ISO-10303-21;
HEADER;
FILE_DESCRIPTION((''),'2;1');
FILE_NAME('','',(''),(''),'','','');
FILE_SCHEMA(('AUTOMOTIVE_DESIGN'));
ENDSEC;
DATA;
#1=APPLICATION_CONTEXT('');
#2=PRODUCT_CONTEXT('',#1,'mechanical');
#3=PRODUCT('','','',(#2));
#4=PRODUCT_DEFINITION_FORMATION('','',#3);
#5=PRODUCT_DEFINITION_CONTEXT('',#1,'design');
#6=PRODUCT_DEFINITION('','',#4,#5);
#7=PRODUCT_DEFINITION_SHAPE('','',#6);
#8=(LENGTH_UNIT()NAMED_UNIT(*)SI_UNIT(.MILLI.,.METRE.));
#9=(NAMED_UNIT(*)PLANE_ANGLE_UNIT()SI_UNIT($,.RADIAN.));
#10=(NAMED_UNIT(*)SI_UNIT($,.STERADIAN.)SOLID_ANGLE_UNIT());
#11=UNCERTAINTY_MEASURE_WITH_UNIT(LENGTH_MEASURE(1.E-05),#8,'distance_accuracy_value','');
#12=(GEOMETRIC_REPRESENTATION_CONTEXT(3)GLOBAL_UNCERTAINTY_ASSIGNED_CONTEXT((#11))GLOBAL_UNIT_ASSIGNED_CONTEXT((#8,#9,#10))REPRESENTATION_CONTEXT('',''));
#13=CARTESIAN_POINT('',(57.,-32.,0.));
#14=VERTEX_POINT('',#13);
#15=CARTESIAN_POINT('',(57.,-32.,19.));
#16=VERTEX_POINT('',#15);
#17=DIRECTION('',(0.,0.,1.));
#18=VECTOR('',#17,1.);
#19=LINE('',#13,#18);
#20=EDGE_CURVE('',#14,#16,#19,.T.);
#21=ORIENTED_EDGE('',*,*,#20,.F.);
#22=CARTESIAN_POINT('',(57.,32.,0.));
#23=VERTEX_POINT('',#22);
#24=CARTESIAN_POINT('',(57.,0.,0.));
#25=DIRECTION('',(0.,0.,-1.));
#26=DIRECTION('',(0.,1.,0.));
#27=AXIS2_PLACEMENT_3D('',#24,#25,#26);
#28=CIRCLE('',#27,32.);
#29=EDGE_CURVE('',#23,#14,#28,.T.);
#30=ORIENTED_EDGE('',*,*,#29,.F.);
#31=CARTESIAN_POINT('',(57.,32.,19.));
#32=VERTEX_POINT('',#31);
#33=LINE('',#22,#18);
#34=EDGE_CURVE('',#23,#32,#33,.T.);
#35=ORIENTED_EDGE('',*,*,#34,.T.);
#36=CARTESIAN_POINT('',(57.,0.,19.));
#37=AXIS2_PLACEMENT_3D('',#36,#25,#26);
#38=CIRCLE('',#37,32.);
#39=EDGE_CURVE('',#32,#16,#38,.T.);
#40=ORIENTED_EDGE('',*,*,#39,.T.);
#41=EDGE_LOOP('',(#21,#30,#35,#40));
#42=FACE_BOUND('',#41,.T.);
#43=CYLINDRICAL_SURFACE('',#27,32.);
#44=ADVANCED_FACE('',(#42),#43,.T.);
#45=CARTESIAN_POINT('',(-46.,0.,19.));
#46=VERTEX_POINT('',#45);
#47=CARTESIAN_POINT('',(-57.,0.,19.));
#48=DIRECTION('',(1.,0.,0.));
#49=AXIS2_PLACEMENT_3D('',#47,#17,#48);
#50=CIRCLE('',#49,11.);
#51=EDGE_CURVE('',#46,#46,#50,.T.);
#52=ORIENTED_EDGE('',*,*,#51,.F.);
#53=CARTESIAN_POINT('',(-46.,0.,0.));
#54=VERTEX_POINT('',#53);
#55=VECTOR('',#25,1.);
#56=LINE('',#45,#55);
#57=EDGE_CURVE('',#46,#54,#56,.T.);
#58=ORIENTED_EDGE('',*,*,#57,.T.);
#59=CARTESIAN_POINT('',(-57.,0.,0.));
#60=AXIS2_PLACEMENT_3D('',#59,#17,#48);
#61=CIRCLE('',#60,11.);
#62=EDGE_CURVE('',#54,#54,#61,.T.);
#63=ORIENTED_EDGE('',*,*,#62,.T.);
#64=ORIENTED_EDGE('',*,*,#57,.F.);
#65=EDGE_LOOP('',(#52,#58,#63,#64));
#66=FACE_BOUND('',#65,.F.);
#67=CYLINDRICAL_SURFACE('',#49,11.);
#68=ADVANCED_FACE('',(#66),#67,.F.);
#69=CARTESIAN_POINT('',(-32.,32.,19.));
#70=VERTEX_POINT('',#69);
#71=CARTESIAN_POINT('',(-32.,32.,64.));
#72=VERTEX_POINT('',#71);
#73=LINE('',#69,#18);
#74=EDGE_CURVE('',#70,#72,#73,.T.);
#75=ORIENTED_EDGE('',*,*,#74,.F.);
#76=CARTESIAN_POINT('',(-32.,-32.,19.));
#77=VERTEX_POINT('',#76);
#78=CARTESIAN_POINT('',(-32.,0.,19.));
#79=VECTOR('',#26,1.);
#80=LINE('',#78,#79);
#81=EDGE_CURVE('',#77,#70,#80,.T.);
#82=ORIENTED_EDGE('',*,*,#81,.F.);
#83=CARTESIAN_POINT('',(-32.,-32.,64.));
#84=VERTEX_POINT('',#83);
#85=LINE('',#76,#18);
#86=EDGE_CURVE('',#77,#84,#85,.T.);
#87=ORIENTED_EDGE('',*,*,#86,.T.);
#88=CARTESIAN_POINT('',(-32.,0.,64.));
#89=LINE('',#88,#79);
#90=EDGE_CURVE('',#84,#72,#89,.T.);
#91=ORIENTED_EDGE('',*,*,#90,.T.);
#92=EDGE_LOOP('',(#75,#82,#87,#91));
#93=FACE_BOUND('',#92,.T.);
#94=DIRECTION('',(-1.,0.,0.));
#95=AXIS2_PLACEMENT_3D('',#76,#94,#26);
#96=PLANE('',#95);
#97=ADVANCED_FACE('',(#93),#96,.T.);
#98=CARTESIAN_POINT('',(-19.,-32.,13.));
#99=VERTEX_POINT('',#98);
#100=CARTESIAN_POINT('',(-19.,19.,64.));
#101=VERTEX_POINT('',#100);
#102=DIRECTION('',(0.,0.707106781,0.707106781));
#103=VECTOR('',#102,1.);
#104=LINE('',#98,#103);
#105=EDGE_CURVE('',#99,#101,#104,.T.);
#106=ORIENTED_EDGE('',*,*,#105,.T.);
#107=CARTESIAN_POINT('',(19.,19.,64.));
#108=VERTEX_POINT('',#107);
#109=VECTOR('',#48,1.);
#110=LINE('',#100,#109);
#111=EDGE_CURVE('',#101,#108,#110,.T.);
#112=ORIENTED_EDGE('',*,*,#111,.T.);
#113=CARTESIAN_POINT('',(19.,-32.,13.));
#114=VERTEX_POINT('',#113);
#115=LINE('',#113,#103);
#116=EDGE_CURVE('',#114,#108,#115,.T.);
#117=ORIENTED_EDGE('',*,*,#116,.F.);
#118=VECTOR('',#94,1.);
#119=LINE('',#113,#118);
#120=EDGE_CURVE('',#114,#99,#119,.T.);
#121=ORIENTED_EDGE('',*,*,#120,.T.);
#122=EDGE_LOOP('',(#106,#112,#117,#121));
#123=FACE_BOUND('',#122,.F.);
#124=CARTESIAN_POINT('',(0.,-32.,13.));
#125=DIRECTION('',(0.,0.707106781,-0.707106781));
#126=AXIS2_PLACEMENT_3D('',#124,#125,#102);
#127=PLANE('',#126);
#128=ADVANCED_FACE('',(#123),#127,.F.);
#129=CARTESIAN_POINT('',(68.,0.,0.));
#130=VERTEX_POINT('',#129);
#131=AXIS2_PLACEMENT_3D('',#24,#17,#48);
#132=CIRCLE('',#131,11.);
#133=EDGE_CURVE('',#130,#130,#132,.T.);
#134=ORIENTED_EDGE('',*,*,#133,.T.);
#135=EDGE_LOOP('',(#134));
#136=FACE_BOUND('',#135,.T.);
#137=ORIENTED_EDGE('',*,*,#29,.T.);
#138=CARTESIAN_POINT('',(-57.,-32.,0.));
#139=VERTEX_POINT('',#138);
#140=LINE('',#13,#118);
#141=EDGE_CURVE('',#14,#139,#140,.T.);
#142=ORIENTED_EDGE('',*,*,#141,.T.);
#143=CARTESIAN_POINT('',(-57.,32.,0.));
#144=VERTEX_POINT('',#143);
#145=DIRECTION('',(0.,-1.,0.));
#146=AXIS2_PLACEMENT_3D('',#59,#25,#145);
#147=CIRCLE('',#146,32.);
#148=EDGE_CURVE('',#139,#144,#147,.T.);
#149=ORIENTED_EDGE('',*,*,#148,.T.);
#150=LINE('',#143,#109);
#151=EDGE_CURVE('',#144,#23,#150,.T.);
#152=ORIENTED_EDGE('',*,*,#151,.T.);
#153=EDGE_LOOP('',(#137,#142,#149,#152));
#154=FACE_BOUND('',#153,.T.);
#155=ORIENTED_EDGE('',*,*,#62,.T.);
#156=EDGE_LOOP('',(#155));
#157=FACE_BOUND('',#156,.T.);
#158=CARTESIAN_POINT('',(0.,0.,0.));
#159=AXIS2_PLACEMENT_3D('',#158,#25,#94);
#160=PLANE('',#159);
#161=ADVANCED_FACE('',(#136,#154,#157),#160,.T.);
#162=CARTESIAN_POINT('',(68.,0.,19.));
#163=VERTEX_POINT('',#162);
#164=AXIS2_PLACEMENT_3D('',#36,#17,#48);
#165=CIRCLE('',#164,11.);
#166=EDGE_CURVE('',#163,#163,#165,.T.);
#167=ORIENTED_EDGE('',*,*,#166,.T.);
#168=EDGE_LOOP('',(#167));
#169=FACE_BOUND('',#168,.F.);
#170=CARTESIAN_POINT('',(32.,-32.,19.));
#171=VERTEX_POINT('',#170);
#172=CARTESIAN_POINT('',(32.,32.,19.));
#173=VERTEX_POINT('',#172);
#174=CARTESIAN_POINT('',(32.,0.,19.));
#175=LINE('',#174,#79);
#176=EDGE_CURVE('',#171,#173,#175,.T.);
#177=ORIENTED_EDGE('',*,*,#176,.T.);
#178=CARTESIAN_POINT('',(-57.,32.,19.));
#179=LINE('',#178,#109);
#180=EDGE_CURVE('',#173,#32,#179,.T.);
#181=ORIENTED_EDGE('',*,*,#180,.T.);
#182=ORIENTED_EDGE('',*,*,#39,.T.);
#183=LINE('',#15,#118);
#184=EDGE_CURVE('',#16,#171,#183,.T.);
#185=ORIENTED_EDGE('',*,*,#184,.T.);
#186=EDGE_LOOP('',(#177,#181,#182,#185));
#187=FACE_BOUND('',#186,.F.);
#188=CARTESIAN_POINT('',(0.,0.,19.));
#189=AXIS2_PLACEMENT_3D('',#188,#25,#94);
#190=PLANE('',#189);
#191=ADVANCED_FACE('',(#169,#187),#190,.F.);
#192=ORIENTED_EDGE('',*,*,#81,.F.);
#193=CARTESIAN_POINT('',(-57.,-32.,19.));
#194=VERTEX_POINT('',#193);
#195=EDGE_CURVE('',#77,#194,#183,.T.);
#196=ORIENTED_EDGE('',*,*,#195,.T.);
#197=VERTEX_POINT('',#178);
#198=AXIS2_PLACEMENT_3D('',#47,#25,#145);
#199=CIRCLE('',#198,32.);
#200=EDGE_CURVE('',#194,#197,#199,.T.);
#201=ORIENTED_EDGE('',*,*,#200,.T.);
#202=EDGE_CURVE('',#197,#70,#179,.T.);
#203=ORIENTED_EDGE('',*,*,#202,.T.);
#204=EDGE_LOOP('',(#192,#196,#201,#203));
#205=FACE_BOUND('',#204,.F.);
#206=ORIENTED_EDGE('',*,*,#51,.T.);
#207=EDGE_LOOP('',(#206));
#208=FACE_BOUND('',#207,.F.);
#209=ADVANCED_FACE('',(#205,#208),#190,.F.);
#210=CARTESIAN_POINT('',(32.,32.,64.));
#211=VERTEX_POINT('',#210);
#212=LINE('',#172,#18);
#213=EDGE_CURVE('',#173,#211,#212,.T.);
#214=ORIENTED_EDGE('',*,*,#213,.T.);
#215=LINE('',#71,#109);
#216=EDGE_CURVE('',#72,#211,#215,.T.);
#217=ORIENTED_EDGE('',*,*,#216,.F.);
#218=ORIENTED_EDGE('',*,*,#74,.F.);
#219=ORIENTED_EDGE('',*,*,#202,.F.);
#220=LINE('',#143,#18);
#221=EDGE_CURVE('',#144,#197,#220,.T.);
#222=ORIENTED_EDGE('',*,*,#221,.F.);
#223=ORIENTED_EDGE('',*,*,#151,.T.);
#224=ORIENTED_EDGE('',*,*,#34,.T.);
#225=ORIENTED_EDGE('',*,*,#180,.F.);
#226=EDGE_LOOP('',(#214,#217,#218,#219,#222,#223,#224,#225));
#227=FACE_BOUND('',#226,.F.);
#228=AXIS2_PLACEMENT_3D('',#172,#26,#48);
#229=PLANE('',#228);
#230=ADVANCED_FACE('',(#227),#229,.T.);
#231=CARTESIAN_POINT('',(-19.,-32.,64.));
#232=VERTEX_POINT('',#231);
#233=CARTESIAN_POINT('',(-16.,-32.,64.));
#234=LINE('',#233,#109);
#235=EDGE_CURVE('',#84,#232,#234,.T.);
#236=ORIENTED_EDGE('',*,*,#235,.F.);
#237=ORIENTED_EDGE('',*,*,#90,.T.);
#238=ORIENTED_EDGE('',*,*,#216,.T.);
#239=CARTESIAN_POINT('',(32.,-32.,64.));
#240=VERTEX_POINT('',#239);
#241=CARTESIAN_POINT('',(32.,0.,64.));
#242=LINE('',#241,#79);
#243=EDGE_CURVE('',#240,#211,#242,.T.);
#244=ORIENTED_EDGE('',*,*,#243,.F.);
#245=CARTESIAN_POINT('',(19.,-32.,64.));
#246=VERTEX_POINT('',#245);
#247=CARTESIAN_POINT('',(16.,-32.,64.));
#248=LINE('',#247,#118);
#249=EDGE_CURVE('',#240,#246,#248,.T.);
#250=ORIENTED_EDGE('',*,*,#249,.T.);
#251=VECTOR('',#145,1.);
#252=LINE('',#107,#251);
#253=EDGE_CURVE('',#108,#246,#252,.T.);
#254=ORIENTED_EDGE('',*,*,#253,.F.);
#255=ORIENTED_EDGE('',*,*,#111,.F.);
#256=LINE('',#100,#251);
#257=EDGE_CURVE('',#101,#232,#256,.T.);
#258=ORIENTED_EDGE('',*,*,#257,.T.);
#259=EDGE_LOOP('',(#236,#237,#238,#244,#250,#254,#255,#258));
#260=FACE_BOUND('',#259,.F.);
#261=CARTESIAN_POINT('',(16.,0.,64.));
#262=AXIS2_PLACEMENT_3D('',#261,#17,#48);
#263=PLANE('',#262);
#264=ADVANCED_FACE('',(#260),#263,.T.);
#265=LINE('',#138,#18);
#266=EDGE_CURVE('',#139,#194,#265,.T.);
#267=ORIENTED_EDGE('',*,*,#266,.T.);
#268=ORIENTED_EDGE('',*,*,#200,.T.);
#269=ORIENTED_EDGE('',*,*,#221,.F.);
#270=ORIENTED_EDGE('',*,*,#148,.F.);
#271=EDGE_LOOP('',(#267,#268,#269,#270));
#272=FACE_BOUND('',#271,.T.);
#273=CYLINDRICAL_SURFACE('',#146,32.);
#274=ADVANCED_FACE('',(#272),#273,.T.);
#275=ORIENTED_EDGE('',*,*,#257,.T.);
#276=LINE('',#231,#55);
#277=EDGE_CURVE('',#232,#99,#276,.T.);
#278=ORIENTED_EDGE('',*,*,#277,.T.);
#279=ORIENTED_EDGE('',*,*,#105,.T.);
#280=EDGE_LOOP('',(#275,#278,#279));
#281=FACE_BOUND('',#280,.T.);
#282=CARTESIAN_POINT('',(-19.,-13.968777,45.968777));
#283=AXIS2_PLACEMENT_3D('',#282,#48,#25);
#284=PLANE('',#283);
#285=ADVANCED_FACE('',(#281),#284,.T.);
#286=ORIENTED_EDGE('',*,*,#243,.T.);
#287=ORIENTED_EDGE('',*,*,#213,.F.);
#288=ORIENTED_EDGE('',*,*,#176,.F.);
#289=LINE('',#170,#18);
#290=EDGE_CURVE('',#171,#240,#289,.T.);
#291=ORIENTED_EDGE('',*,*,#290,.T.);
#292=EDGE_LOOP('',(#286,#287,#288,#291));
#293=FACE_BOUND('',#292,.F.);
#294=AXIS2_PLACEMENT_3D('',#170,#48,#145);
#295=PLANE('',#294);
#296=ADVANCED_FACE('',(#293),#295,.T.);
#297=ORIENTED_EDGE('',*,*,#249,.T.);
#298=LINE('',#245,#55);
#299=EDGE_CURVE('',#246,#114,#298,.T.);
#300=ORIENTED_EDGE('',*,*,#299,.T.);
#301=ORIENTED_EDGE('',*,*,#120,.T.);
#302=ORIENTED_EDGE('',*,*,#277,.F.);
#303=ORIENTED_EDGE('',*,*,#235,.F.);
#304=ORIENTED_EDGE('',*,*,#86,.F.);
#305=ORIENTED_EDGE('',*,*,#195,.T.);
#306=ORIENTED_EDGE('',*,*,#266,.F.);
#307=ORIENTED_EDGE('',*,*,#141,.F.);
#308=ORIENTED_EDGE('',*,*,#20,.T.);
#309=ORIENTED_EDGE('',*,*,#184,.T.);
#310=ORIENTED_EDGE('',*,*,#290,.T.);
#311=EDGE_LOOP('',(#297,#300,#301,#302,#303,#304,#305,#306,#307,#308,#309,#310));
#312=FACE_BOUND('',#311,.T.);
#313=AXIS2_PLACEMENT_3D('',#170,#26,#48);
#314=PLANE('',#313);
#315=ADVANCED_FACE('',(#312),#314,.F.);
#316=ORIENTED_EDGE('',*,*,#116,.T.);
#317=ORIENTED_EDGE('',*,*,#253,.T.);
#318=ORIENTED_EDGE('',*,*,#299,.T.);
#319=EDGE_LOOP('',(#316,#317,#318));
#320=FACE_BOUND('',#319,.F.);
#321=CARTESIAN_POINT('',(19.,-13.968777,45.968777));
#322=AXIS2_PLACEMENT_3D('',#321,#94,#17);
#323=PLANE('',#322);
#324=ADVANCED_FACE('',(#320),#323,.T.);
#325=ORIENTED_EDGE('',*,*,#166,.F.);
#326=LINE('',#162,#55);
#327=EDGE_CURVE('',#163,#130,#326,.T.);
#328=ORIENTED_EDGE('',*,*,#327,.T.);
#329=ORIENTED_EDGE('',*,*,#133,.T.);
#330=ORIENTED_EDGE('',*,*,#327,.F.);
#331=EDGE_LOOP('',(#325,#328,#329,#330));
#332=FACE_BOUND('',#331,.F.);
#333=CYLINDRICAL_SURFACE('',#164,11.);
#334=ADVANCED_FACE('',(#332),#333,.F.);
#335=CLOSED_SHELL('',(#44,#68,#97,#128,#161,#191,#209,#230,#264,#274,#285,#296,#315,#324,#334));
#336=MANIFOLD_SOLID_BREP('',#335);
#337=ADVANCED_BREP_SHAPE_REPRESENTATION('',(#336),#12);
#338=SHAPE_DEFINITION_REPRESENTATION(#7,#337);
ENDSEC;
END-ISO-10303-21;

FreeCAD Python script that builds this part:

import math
import FreeCAD as App
import Part
import Sketcher
from FreeCAD import Vector

doc = App.newDocument("Part")
body = doc.addObject("PartDesign::Body", "Body")

sketch1 = doc.addObject("Sketcher::SketchObject", "Sketch")
body.addObject(sketch1)
sketch1.AttachmentSupport = (doc.XY_Plane, [""])
sketch1.MapMode = "FlatFace"
sketch1.addGeometry([
    Part.LineSegment(Vector(57, 32, 0), Vector(-57, 32, 0)),
    Part.ArcOfCircle(Part.Circle(Vector(-57, 0, 0), Vector(0, 0, 1), 32), math.radians(90), math.radians(270)),
    Part.LineSegment(Vector(-57, -32, 0), Vector(57, -32, 0)),
    Part.ArcOfCircle(Part.Circle(Vector(57, 0, 0), Vector(0, 0, 1), 32), math.radians(-90), math.radians(90)),
], False)
sketch1.addConstraint([
    Sketcher.Constraint("Tangent", 0, 2, 1, 1),
    Sketcher.Constraint("Tangent", 1, 2, 2, 1),
    Sketcher.Constraint("Tangent", 2, 2, 3, 1),
    Sketcher.Constraint("Tangent", 3, 2, 0, 1),
    Sketcher.Constraint("Horizontal", 0),
    Sketcher.Constraint("Horizontal", 2),
    Sketcher.Constraint("Symmetric", 1, 3, 3, 3, -1, 1),
    Sketcher.Constraint("Radius", 1, 32.0),
    Sketcher.Constraint("DistanceX", 0, 2, 0, 1, 114.0),
])
pad1 = doc.addObject("PartDesign::Pad", "Pad")
body.addObject(pad1)
pad1.Profile = sketch1
pad1.Length = 19

sketch2 = doc.addObject("Sketcher::SketchObject", "Sketch001")
body.addObject(sketch2)
sketch2.AttachmentSupport = (doc.XY_Plane, [""])
sketch2.MapMode = "FlatFace"
sketch2.AttachmentOffset = App.Placement(Vector(0, 0, 19), App.Rotation())
sketch2.addGeometry([
    Part.Circle(Vector(-57, 0, 0), Vector(0, 0, 1), 11),
    Part.Circle(Vector(57, 0, 0), Vector(0, 0, 1), 11),
], False)
sketch2.addConstraint([
    Sketcher.Constraint("Equal", 0, 1),
    Sketcher.Constraint("Symmetric", 0, 3, 1, 3, -1, 1),
    Sketcher.Constraint("PointOnObject", 0, 3, -1),
    Sketcher.Constraint("Diameter", 0, 22.0),
    Sketcher.Constraint("DistanceX", 0, 3, -1, 1, 57.0),
])
pocket1 = doc.addObject("PartDesign::Pocket", "Pocket")
body.addObject(pocket1)
pocket1.Profile = sketch2
pocket1.Type = "ThroughAll"

sketch3 = doc.addObject("Sketcher::SketchObject", "Sketch002")
body.addObject(sketch3)
sketch3.AttachmentSupport = (doc.XY_Plane, [""])
sketch3.MapMode = "FlatFace"
sketch3.AttachmentOffset = App.Placement(Vector(0, 0, 19), App.Rotation())
sketch3.addGeometry([
    Part.LineSegment(Vector(-32, 32, 0), Vector(-32, -32, 0)),
    Part.LineSegment(Vector(-32, -32, 0), Vector(0, -32, 0)),
    Part.LineSegment(Vector(0, -32, 0), Vector(0, 32, 0)),
    Part.LineSegment(Vector(0, 32, 0), Vector(-32, 32, 0)),
], False)
sketch3.addConstraint([
    Sketcher.Constraint("Coincident", 0, 2, 1, 1),
    Sketcher.Constraint("Coincident", 1, 2, 2, 1),
    Sketcher.Constraint("Coincident", 2, 2, 3, 1),
    Sketcher.Constraint("Coincident", 3, 2, 0, 1),
    Sketcher.Constraint("Vertical", 0),
    Sketcher.Constraint("Horizontal", 1),
    Sketcher.Constraint("Vertical", 2),
    Sketcher.Constraint("Horizontal", 3),
    Sketcher.Constraint("Symmetric", 1, 2, 2, 2, -1, 1),
    Sketcher.Constraint("DistanceX", 1, 1, 1, 2, 32.0),
    Sketcher.Constraint("DistanceY", 0, 2, 0, 1, 64.0),
])
pad2 = doc.addObject("PartDesign::Pad", "Pad001")
body.addObject(pad2)
pad2.Profile = sketch3
pad2.Length = 45

sketch4 = doc.addObject("Sketcher::SketchObject", "Sketch003")
body.addObject(sketch4)
sketch4.AttachmentSupport = (doc.YZ_Plane, [""])
sketch4.MapMode = "FlatFace"
sketch4.addGeometry([
    Part.LineSegment(Vector(-32, 13, 0), Vector(19, 64, 0)),
    Part.LineSegment(Vector(19, 64, 0), Vector(-32, 64, 0)),
    Part.LineSegment(Vector(-32, 64, 0), Vector(-32, 13, 0)),
], False)
sketch4.addConstraint([
    Sketcher.Constraint("Coincident", 0, 2, 1, 1),
    Sketcher.Constraint("Coincident", 1, 2, 2, 1),
    Sketcher.Constraint("Coincident", 2, 2, 0, 1),
    Sketcher.Constraint("Horizontal", 1),
    Sketcher.Constraint("Vertical", 2),
    Sketcher.Constraint("Equal", 1, 2),
    Sketcher.Constraint("DistanceX", 1, 2, 1, 1, 51.0),
    Sketcher.Constraint("DistanceX", -1, 1, 0, 2, 19.0),
    Sketcher.Constraint("DistanceY", -1, 1, 0, 2, 64.0),
])
pocket2 = doc.addObject("PartDesign::Pocket", "Pocket001")
body.addObject(pocket2)
pocket2.Profile = sketch4
pocket2.Length = 19
doc.recompute()

mirrored = doc.addObject("PartDesign::Mirrored", "Mirrored")
body.addObject(mirrored)
mirrored.Originals = [pad2, pocket2]
mirrored.MirrorPlane = (doc.YZ_Plane, [""])
body.Tip = mirrored

doc.recompute()
